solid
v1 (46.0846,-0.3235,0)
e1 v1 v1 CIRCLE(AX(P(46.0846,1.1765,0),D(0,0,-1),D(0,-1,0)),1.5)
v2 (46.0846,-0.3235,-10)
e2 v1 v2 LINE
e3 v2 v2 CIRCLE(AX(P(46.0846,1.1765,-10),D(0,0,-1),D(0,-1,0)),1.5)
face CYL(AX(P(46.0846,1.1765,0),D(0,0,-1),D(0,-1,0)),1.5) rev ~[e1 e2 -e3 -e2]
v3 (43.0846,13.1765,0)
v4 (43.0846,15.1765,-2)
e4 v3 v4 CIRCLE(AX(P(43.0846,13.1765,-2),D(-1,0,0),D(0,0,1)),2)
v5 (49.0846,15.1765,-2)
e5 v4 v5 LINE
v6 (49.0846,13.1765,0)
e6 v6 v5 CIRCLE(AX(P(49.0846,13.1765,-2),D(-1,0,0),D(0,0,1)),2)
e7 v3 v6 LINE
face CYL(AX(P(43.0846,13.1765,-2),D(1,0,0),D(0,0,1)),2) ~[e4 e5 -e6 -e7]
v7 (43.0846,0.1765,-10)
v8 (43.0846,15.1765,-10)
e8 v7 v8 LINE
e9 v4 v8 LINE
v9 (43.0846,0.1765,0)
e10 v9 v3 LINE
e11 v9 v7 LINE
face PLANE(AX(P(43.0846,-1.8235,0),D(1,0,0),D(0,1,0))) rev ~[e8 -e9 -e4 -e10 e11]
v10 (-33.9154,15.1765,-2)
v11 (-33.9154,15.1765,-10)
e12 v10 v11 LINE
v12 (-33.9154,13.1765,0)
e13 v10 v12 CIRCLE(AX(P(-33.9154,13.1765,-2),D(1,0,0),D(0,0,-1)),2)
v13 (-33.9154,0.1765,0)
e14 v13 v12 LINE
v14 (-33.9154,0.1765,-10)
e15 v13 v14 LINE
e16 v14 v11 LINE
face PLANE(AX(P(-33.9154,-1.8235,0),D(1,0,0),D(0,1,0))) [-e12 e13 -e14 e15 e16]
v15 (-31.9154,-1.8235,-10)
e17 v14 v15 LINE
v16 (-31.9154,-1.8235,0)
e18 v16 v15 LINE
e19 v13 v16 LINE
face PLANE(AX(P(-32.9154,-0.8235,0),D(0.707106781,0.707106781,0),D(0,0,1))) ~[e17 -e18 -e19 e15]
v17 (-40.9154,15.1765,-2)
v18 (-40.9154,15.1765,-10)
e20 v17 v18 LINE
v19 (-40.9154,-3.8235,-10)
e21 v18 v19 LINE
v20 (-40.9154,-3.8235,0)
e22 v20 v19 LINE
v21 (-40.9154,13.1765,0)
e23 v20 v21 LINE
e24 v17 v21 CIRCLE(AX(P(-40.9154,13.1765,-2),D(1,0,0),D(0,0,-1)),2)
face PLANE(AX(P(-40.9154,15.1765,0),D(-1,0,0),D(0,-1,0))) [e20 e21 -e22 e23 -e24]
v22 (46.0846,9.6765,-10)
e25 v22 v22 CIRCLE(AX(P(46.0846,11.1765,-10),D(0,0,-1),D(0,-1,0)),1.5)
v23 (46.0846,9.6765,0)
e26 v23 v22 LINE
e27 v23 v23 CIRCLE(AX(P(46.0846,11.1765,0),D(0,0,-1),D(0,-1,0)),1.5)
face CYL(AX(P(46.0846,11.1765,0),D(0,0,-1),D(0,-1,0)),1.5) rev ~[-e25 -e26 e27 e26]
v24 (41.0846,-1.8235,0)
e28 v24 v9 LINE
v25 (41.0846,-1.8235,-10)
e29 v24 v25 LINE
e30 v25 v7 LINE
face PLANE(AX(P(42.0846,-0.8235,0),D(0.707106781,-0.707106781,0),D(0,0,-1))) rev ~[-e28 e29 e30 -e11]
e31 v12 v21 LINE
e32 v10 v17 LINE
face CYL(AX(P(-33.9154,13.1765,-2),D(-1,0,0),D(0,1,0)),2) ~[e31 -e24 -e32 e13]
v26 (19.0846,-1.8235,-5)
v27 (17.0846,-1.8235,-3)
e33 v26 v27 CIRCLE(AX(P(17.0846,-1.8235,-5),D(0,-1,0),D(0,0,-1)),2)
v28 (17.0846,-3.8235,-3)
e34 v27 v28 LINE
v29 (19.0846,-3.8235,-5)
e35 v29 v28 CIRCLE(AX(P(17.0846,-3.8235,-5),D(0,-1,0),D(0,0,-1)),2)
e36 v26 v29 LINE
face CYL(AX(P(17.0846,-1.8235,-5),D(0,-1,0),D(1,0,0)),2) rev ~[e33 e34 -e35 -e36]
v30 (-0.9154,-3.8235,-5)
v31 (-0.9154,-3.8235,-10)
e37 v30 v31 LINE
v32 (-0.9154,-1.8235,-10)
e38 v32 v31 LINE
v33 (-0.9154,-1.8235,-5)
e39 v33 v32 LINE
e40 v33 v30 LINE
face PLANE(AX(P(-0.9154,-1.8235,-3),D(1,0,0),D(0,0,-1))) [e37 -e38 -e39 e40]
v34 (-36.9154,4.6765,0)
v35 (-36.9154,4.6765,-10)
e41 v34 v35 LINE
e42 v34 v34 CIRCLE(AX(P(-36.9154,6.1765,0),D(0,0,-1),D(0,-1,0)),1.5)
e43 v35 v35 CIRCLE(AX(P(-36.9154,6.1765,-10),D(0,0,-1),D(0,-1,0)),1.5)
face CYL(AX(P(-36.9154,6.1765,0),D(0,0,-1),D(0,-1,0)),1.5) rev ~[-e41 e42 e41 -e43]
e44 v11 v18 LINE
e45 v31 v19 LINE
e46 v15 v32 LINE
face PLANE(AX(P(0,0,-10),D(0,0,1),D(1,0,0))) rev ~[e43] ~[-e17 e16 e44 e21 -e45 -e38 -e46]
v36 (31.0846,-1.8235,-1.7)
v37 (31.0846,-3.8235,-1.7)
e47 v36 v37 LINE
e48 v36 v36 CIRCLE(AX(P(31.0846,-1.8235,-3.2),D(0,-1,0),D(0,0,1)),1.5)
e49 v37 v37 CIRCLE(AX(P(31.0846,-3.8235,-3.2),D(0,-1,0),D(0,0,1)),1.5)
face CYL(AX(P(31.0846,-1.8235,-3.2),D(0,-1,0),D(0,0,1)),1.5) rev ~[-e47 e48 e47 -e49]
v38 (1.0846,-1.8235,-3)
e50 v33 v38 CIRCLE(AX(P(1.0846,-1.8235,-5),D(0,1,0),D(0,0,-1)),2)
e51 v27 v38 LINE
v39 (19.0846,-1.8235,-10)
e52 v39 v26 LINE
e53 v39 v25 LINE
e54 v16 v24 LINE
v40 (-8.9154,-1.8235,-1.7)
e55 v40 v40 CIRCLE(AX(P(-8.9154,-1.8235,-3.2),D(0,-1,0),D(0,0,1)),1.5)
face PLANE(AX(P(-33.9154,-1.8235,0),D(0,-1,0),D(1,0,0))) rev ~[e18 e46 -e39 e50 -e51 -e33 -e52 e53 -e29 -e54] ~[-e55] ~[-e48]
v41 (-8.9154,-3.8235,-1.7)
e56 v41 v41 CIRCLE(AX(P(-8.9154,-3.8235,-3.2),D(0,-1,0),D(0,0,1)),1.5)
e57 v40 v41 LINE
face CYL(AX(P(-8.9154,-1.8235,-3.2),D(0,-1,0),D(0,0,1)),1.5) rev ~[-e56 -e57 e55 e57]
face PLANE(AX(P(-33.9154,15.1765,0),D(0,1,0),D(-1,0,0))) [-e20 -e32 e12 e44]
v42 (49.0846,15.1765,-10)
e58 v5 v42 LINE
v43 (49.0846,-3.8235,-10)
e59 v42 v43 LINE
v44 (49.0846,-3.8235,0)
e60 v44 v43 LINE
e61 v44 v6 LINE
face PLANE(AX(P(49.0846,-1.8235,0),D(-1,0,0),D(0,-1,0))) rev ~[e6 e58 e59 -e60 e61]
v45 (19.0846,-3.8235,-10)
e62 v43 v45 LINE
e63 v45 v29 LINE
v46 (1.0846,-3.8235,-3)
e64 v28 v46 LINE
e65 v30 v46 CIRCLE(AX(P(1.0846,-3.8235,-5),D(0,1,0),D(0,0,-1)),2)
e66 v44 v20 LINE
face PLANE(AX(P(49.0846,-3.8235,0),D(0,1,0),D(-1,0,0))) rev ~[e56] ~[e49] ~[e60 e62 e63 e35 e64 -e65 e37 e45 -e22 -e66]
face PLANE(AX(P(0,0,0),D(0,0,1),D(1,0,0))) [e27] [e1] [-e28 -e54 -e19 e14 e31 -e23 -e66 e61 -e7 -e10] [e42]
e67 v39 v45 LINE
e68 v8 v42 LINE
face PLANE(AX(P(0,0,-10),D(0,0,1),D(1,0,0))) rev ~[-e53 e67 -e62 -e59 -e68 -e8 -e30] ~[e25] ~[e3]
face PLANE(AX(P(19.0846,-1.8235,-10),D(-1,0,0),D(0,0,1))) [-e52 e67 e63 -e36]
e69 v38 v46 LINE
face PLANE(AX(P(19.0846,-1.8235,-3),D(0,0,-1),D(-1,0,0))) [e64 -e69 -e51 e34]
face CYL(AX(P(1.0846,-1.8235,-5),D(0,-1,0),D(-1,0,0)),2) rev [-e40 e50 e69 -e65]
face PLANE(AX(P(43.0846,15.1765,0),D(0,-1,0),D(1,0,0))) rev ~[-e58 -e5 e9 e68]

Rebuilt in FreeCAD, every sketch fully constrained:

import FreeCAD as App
import Part
import Sketcher
from FreeCAD import Vector
Q = App.Units.Quantity


def edges_at(feature, points):
    """Names of the edges that pass closest to the given points."""
    edges = feature.Shape.Edges
    near = lambda p: min(range(len(edges)), key=lambda i: edges[i].distToShape(Part.Vertex(*p))[0])
    return sorted({f"Edge{near(p) + 1}" for p in points})

doc = App.newDocument("Part")
body = doc.addObject("PartDesign::Body", "Body")

# Sketch on XY plane
sketch1 = body.newObject("Sketcher::SketchObject", "Sketch")
sketch1.AttachmentSupport = (doc.getObject("XY_Plane"), [""])
sketch1.MapMode = "FlatFace"
sketch1.addGeometry([
    Part.LineSegment(Vector(-41, 15, 0), Vector(-41, -4, 0)),  # 0
    Part.LineSegment(Vector(-41, -4, 0), Vector(49, -4, 0)),  # 1
    Part.LineSegment(Vector(49, -4, 0), Vector(49, 15, 0)),  # 2
    Part.LineSegment(Vector(49, 15, 0), Vector(43, 15, 0)),  # 3
    Part.LineSegment(Vector(43, 15, 0), Vector(43, -2, 0)),  # 4
    Part.LineSegment(Vector(43, -2, 0), Vector(-34, -2, 0)),  # 5
    Part.LineSegment(Vector(-34, -2, 0), Vector(-34, 15, 0)),  # 6
    Part.LineSegment(Vector(-34, 15, 0), Vector(-41, 15, 0)),  # 7
], False)
sketch1.addConstraint([
    Sketcher.Constraint("Coincident", 0, 2, 1, 1),
    Sketcher.Constraint("Coincident", 1, 2, 2, 1),
    Sketcher.Constraint("Coincident", 2, 2, 3, 1),
    Sketcher.Constraint("Coincident", 3, 2, 4, 1),
    Sketcher.Constraint("Coincident", 4, 2, 5, 1),
    Sketcher.Constraint("Coincident", 5, 2, 6, 1),
    Sketcher.Constraint("Coincident", 6, 2, 7, 1),
    Sketcher.Constraint("Coincident", 7, 2, 0, 1),
    Sketcher.Constraint("Vertical", 0),
    Sketcher.Constraint("Horizontal", 1),
    Sketcher.Constraint("Vertical", 2),
    Sketcher.Constraint("Horizontal", 3),
    Sketcher.Constraint("Vertical", 4),
    Sketcher.Constraint("Horizontal", 5),
    Sketcher.Constraint("Vertical", 6),
    Sketcher.Constraint("Horizontal", 7),
    Sketcher.Constraint("Horizontal", 3, 2, 6, 2),
    Sketcher.Constraint("DistanceX", 1, 1, 1, 2, Q("90 mm")),
    Sketcher.Constraint("DistanceY", 0, 2, 0, 1, Q("19 mm")),
    Sketcher.Constraint("DistanceY", 1, 2, 4, 2, Q("2 mm")),
    Sketcher.Constraint("DistanceX", 5, 2, 1, 2, Q("83 mm")),
    Sketcher.Constraint("DistanceX", 3, 2, 3, 1, Q("6 mm")),
    Sketcher.Constraint("DistanceX", 0, 2, -1, 1, Q("40.9154 mm")),
    Sketcher.Constraint("DistanceY", 0, 2, -1, 1, Q("3.8235 mm")),
])
pad1 = body.newObject("PartDesign::Pad", "Pad")
pad1.Profile = sketch1
pad1.Length = 10
pad1.Reversed = True
doc.recompute()

fillet = body.newObject("PartDesign::Fillet", "Fillet")
fillet.Base = (pad1, edges_at(pad1, [(-37.415, 15.177, 0), (46.085, 15.177, 0)]))
fillet.Radius = 2

# Sketch on XY plane
sketch2 = body.newObject("Sketcher::SketchObject", "Sketch001")
sketch2.AttachmentSupport = (doc.getObject("XY_Plane"), [""])
sketch2.MapMode = "FlatFace"
sketch2.addGeometry([
    Part.Circle(Vector(-36.9, 6.2, 0), Vector(0, 0, 1), 1.5),
    Part.Circle(Vector(46.1, 1.2, 0), Vector(0, 0, 1), 1.5),
    Part.Circle(Vector(46.1, 11.2, 0), Vector(0, 0, 1), 1.5),
], False)
sketch2.addConstraint([
    Sketcher.Constraint("Equal", 0, 1),
    Sketcher.Constraint("Equal", 1, 2),
    Sketcher.Constraint("Vertical", 1, 3, 2, 3),
    Sketcher.Constraint("Diameter", 0, Q("3 mm")),
    Sketcher.Constraint("DistanceX", 0, 3, 1, 3, Q("83 mm")),
    Sketcher.Constraint("DistanceY", 1, 3, 0, 3, Q("5 mm")),
    Sketcher.Constraint("DistanceY", 1, 3, 2, 3, Q("10 mm")),
    Sketcher.Constraint("DistanceX", 0, 3, -1, 1, Q("36.9154 mm")),
    Sketcher.Constraint("DistanceY", -1, 1, 0, 3, Q("6.1765 mm")),
])
doc.recompute()
hole = body.newObject("PartDesign::Hole", "Hole")
hole.Profile = sketch2
hole.ThreadType = "None"
hole.Diameter = 3
hole.DepthType = "Dimension"
hole.Depth = 10
hole.DrillPoint = "Angled"
hole.DrillPointAngle = 118
doc.recompute()

chamfer = body.newObject("PartDesign::Chamfer", "Chamfer")
chamfer.Base = (hole, edges_at(hole, [(-33.915, -1.823, -5), (43.085, -1.823, -5)]))
chamfer.Size = 2

# Sketch on XZ plane
sketch3 = body.newObject("Sketcher::SketchObject", "Sketch002")
sketch3.AttachmentSupport = (doc.getObject("XZ_Plane"), [""])
sketch3.MapMode = "FlatFace"
sketch3.AttachmentOffset = App.Placement(Vector(0, 0, 1.8235), App.Rotation())
sketch3.addGeometry([
    Part.Circle(Vector(-8.9, -3.2, 0), Vector(0, 0, 1), 1.5),
    Part.Circle(Vector(31.1, -3.2, 0), Vector(0, 0, 1), 1.5),
    Part.Circle(Vector(36.5, -17, 0), Vector(0, 0, 1), 1.5),
], False)
sketch3.addConstraint([
    Sketcher.Constraint("Equal", 0, 1),
    Sketcher.Constraint("Equal", 1, 2),
    Sketcher.Constraint("Horizontal", 0, 3, 1, 3),
    Sketcher.Constraint("Diameter", 0, Q("3 mm")),
    Sketcher.Constraint("DistanceX", 0, 3, 1, 3, Q("40 mm")),
    Sketcher.Constraint("DistanceY", 0, 3, -1, 1, Q("3.2 mm")),
    Sketcher.Constraint("DistanceX", 1, 3, 2, 3, Q("5.374 mm")),
    Sketcher.Constraint("DistanceX", 0, 3, -1, 1, Q("8.9154 mm")),
    Sketcher.Constraint("DistanceY", 2, 3, -1, 1, Q("17.0038 mm")),
])
doc.recompute()
hole2 = body.newObject("PartDesign::Hole", "Hole001")
hole2.Profile = sketch3
hole2.ThreadType = "None"
hole2.Diameter = 3
hole2.DepthType = "Dimension"
hole2.Depth = 10
hole2.DrillPoint = "Angled"
hole2.DrillPointAngle = 118
hole2.Reversed = True

# Sketch on XZ plane
sketch4 = body.newObject("Sketcher::SketchObject", "Sketch003")
sketch4.AttachmentSupport = (doc.getObject("XZ_Plane"), [""])
sketch4.MapMode = "FlatFace"
sketch4.AttachmentOffset = App.Placement(Vector(0, 0, 1.8235), App.Rotation())
sketch4.addGeometry([
    Part.LineSegment(Vector(19, -10, 0), Vector(-1, -10, 0)),
    Part.LineSegment(Vector(-1, -10, 0), Vector(-1, -3, 0)),
    Part.LineSegment(Vector(-1, -3, 0), Vector(19, -3, 0)),
    Part.LineSegment(Vector(19, -3, 0), Vector(19, -10, 0)),
], False)
sketch4.addConstraint([
    Sketcher.Constraint("Coincident", 0, 2, 1, 1),
    Sketcher.Constraint("Coincident", 1, 2, 2, 1),
    Sketcher.Constraint("Coincident", 2, 2, 3, 1),
    Sketcher.Constraint("Coincident", 3, 2, 0, 1),
    Sketcher.Constraint("Horizontal", 0),
    Sketcher.Constraint("Vertical", 1),
    Sketcher.Constraint("Horizontal", 2),
    Sketcher.Constraint("Vertical", 3),
    Sketcher.Constraint("DistanceY", 1, 2, -1, 1, Q("3 mm")),
    Sketcher.Constraint("DistanceX", 0, 2, 0, 1, Q("20 mm")),
    Sketcher.Constraint("DistanceY", 1, 1, 1, 2, Q("7 mm")),
    Sketcher.Constraint("DistanceX", 0, 2, -1, 1, Q("0.9154 mm")),
])
pocket1 = body.newObject("PartDesign::Pocket", "Pocket")
pocket1.Profile = sketch4
pocket1.Length = 2
pocket1.Reversed = True
doc.recompute()

fillet2 = body.newObject("PartDesign::Fillet", "Fillet001")
fillet2.Base = (pocket1, edges_at(pocket1, [(-0.915, -2.824, -3), (19.085, -2.824, -3)]))
fillet2.Radius = 2

doc.recompute()
